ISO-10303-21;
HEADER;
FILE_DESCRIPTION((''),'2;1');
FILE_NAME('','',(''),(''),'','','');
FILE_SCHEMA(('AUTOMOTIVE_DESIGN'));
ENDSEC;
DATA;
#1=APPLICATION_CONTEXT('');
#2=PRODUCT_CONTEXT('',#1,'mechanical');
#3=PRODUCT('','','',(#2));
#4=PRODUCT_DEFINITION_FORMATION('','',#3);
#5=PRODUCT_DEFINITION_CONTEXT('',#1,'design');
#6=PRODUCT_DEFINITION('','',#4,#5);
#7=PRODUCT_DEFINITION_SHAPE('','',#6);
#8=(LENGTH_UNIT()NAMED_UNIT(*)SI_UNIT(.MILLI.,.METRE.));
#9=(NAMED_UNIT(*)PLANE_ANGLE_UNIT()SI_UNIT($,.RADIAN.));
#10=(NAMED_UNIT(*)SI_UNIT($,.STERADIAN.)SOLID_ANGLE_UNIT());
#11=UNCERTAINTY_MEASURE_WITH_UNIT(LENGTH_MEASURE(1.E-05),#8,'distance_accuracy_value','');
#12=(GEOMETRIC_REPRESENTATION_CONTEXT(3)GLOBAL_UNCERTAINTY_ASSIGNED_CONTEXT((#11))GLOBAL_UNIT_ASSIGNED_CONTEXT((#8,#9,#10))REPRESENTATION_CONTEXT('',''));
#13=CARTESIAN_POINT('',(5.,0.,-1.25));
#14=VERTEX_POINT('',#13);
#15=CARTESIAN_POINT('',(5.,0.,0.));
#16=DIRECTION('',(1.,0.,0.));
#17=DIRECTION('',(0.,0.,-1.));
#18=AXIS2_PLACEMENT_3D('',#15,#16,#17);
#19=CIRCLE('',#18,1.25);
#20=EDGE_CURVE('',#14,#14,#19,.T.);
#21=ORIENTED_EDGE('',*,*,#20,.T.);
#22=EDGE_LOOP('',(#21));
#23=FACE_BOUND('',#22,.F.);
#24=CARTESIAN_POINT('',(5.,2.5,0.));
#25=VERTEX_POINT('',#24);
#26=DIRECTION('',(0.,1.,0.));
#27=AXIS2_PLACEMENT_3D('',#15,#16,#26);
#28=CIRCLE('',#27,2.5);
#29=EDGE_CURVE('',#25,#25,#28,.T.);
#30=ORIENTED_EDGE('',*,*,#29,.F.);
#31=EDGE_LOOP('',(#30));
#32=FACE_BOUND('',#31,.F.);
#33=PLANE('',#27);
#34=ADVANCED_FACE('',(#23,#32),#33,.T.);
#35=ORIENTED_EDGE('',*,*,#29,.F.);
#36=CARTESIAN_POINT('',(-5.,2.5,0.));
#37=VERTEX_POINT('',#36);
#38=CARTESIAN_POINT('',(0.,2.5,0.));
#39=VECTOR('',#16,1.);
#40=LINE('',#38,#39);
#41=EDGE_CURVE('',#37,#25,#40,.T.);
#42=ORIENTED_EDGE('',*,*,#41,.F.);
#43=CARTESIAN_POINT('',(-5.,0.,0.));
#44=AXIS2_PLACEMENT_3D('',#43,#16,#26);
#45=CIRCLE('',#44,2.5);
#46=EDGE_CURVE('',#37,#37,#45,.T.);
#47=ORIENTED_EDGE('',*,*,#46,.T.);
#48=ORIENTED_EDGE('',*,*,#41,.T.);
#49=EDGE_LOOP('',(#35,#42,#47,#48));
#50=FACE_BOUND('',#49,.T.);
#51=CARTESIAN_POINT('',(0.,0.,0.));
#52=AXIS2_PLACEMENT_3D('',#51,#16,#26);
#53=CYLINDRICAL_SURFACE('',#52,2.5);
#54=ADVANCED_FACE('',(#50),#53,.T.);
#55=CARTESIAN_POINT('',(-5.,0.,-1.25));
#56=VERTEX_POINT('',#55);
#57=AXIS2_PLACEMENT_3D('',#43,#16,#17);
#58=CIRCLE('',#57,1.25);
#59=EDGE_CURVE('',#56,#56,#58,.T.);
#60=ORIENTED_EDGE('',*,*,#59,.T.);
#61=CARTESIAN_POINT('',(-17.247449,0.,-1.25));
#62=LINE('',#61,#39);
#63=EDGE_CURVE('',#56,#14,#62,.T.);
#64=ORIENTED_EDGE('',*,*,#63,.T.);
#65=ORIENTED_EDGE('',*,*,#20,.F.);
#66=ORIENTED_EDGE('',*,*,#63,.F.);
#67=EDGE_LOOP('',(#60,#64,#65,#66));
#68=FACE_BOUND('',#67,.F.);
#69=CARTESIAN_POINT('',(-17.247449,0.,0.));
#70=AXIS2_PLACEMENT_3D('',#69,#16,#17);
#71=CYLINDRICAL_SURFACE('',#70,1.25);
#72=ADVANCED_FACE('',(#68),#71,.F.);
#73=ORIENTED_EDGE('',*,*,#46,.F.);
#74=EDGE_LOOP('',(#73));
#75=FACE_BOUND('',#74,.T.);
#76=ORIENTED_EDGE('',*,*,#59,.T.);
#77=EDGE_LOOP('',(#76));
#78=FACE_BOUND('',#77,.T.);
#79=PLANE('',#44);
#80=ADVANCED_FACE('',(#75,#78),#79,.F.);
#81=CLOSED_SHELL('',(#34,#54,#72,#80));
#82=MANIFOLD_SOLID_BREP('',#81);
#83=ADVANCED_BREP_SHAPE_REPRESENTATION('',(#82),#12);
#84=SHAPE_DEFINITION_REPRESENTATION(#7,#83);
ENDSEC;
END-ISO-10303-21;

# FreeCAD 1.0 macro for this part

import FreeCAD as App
import Part
import Sketcher

doc = App.newDocument("Part")
body = doc.addObject("PartDesign::Body", "Body")

# Sketch on XY plane
sketch1 = body.newObject("Sketcher::SketchObject", "Sketch")
sketch1.AttachmentSupport = (doc.getObject("XY_Plane"), [""])
sketch1.MapMode = "FlatFace"
sketch1.addGeometry(Part.LineSegment(App.Vector(-5, 2.5, 0), App.Vector(-5, 0, 0)), False)
sketch1.addGeometry(Part.LineSegment(App.Vector(-5, 0, 0), App.Vector(5, 0, 0)), False)
sketch1.addGeometry(Part.LineSegment(App.Vector(5, 0, 0), App.Vector(5, 2.5, 0)), False)
sketch1.addGeometry(Part.LineSegment(App.Vector(5, 2.5, 0), App.Vector(-5, 2.5, 0)), False)
sketch1.addConstraint(Sketcher.Constraint("Coincident", 0, 2, 1, 1))
sketch1.addConstraint(Sketcher.Constraint("Coincident", 1, 2, 2, 1))
sketch1.addConstraint(Sketcher.Constraint("Coincident", 2, 2, 3, 1))
sketch1.addConstraint(Sketcher.Constraint("Coincident", 3, 2, 0, 1))
sketch1.addConstraint(Sketcher.Constraint("Vertical", 0))
sketch1.addConstraint(Sketcher.Constraint("Horizontal", 1))
sketch1.addConstraint(Sketcher.Constraint("Vertical", 2))
sketch1.addConstraint(Sketcher.Constraint("Horizontal", 3))
sketch1.addConstraint(Sketcher.Constraint("Symmetric", 0, 2, 1, 2, -1, 1))
sketch1.addConstraint(Sketcher.Constraint("DistanceX", 1, 1, 1, 2, 10.0))
sketch1.addConstraint(Sketcher.Constraint("DistanceY", 0, 2, 0, 1, 2.5))
revolution = body.newObject("PartDesign::Revolution", "Revolution")
revolution.Profile = sketch1
revolution.ReferenceAxis = (sketch1, ["H_Axis"])
revolution.Angle = 360

# Sketch on YZ plane
sketch2 = body.newObject("Sketcher::SketchObject", "Sketch001")
sketch2.AttachmentSupport = (doc.getObject("YZ_Plane"), [""])
sketch2.MapMode = "FlatFace"
sketch2.AttachmentOffset = App.Placement(App.Vector(0, 0, -5), App.Rotation())
sketch2.addGeometry(Part.Circle(App.Vector(0, 0, 0), App.Vector(0, 0, 1), 1.2), False)
sketch2.addConstraint(Sketcher.Constraint("Coincident", 0, 3, -1, 1))
sketch2.addConstraint(Sketcher.Constraint("Diameter", 0, 2.5))
doc.recompute()
hole = body.newObject("PartDesign::Hole", "Hole")
hole.Profile = sketch2
hole.ThreadType = "None"
hole.Diameter = 2.5
hole.DepthType = "ThroughAll"
hole.Reversed = True

doc.recompute()
